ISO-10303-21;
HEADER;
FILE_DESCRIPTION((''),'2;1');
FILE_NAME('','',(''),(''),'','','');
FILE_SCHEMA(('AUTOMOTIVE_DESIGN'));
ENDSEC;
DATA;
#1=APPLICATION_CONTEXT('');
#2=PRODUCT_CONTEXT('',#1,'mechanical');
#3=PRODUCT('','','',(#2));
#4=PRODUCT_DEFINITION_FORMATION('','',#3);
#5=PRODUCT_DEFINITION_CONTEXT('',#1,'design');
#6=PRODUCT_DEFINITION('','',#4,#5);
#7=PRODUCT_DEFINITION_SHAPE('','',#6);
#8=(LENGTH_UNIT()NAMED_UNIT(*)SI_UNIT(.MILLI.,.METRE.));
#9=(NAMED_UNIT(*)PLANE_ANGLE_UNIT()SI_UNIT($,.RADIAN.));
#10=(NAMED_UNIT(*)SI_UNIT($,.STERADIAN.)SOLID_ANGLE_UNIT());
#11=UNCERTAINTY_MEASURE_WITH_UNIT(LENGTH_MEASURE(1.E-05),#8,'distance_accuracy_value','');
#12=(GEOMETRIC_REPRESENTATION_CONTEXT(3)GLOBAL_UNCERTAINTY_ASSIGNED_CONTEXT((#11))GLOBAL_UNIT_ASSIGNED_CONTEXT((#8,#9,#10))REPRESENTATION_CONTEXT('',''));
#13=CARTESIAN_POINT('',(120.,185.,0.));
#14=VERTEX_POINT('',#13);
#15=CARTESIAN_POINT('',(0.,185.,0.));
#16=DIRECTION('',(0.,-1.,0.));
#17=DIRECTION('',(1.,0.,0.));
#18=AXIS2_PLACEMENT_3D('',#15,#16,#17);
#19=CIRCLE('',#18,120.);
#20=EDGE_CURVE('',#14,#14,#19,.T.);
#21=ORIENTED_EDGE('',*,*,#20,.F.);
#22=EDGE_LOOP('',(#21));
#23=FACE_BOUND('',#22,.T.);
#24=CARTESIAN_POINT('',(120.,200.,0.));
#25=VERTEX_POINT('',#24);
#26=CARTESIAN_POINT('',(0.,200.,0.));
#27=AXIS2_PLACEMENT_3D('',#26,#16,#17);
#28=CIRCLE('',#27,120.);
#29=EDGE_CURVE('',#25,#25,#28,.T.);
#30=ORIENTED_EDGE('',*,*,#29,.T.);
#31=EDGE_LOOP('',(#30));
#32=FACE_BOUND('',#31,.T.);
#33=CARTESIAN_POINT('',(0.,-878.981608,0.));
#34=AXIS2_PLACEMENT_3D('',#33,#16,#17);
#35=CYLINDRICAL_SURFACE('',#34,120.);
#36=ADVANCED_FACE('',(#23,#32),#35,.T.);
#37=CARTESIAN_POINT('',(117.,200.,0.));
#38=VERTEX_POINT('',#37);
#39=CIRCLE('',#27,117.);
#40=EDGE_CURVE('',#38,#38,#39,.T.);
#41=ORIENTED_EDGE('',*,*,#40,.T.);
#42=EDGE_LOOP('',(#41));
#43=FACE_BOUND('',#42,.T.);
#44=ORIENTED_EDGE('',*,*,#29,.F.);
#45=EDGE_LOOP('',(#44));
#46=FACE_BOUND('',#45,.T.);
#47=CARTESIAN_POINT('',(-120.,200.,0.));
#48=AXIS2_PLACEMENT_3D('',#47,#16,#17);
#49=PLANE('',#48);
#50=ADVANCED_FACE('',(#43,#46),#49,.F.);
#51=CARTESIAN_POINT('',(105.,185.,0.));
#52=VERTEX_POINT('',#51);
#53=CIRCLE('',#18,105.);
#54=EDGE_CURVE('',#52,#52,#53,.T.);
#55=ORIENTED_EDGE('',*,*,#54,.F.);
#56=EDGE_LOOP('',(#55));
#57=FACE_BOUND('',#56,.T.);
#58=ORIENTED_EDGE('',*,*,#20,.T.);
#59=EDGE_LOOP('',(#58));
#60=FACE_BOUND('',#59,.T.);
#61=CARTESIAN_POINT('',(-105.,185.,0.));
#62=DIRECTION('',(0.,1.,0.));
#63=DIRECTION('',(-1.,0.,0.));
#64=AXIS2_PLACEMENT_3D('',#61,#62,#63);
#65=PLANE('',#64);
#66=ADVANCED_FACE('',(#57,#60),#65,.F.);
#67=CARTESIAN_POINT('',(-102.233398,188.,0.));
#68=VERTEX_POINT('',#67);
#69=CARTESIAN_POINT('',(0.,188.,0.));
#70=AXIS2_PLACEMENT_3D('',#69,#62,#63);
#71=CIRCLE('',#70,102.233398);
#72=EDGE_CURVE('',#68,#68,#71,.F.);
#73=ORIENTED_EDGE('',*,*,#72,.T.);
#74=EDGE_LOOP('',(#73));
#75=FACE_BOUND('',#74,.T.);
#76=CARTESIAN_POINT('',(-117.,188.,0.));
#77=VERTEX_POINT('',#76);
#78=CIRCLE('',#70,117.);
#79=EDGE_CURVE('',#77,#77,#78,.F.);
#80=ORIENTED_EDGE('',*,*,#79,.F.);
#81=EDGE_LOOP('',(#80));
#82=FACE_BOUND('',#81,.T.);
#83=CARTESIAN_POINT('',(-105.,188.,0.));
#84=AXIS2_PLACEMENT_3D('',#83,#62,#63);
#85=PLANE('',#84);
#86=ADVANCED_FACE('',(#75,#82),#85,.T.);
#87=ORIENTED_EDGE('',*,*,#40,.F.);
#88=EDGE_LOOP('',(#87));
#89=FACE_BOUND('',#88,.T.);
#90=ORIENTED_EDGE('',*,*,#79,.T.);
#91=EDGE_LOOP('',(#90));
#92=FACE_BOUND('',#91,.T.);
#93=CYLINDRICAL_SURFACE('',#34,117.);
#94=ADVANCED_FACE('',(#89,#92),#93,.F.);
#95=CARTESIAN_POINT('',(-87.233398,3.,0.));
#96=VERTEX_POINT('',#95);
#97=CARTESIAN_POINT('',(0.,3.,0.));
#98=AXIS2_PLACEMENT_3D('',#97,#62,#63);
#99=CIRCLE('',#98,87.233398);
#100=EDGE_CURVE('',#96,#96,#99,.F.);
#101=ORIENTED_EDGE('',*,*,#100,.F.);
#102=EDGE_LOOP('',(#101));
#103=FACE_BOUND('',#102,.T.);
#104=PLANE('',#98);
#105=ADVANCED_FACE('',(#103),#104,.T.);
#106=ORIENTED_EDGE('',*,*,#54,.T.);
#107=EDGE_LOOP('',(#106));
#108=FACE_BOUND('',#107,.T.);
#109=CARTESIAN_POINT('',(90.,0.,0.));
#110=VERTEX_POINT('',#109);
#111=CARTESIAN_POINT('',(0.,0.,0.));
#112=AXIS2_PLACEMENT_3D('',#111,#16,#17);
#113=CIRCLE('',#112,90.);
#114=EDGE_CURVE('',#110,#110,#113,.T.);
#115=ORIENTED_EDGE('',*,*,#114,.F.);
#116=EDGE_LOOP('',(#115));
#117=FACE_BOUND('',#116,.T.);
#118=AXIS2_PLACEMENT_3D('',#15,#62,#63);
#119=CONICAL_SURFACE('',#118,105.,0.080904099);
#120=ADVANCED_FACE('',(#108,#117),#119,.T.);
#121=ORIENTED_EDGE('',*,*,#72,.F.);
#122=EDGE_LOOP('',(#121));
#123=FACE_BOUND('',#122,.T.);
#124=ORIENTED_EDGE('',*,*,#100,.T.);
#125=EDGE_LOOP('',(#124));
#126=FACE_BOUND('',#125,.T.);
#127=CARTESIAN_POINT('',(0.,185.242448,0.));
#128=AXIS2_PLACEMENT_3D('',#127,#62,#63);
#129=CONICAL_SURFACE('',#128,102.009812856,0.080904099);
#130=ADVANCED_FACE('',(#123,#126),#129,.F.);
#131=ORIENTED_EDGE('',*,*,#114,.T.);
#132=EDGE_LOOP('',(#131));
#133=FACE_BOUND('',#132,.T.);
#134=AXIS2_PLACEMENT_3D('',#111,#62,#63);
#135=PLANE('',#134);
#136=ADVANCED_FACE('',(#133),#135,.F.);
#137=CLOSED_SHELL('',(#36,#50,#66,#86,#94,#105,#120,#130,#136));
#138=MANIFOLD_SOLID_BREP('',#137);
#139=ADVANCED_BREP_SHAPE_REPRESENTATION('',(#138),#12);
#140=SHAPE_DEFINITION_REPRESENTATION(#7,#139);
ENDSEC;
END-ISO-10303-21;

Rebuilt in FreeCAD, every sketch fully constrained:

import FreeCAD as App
import Part
import Sketcher


def faces_at(feature, points):
    """Names of the faces that lie closest to the given points."""
    faces = feature.Shape.Faces
    near = lambda p: min(range(len(faces)), key=lambda i: faces[i].distToShape(Part.Vertex(*p))[0])
    return sorted({f"Face{near(p) + 1}" for p in points})

doc = App.newDocument("Part")
body = doc.addObject("PartDesign::Body", "Body")

# Sketch on XY plane
sketch1 = doc.addObject("Sketcher::SketchObject", "Sketch")
body.addObject(sketch1)
sketch1.AttachmentSupport = (doc.XY_Plane, [""])
sketch1.MapMode = "FlatFace"
sketch1.addGeometry([
    Part.LineSegment(App.Vector(-90, 0, 0), App.Vector(0, 0, 0)),  # 0
    Part.LineSegment(App.Vector(0, 0, 0), App.Vector(0, 200, 0)),  # 1
    Part.LineSegment(App.Vector(0, 200, 0), App.Vector(-120, 200, 0)),  # 2
    Part.LineSegment(App.Vector(-120, 200, 0), App.Vector(-120, 185, 0)),  # 3
    Part.LineSegment(App.Vector(-120, 185, 0), App.Vector(-105, 185, 0)),  # 4
    Part.LineSegment(App.Vector(-105, 185, 0), App.Vector(-90, 0, 0)),  # 5
], False)
sketch1.addConstraint([
    Sketcher.Constraint("Coincident", 0, 2, 1, 1),
    Sketcher.Constraint("Coincident", 1, 2, 2, 1),
    Sketcher.Constraint("Coincident", 2, 2, 3, 1),
    Sketcher.Constraint("Coincident", 3, 2, 4, 1),
    Sketcher.Constraint("Coincident", 4, 2, 5, 1),
    Sketcher.Constraint("Coincident", 5, 2, 0, 1),
    Sketcher.Constraint("Horizontal", 0),
    Sketcher.Constraint("Vertical", 1),
    Sketcher.Constraint("Horizontal", 2),
    Sketcher.Constraint("Vertical", 3),
    Sketcher.Constraint("Horizontal", 4),
    Sketcher.Constraint("Coincident", 0, 2, -1, 1),
    Sketcher.Constraint("Equal", 4, 3),
    Sketcher.Constraint("DistanceX", 0, 1, 0, 2, 90.0),
    Sketcher.Constraint("DistanceX", 2, 2, 2, 1, 120.0),
    Sketcher.Constraint("DistanceX", 4, 1, 4, 2, 15.0),
    Sketcher.Constraint("DistanceY", 1, 1, 1, 2, 200.0),
])
revolution = doc.addObject("PartDesign::Revolution", "Revolution")
body.addObject(revolution)
revolution.Profile = sketch1
revolution.ReferenceAxis = (sketch1, ["V_Axis"])
revolution.Angle = 360
doc.recompute()

thickness = doc.addObject("PartDesign::Thickness", "Thickness")
body.addObject(thickness)
thickness.Base = (revolution, faces_at(revolution, [(0, 200, 0)]))
thickness.Value = 3
thickness.Reversed = True
thickness.Join = "Intersection"

doc.recompute()
